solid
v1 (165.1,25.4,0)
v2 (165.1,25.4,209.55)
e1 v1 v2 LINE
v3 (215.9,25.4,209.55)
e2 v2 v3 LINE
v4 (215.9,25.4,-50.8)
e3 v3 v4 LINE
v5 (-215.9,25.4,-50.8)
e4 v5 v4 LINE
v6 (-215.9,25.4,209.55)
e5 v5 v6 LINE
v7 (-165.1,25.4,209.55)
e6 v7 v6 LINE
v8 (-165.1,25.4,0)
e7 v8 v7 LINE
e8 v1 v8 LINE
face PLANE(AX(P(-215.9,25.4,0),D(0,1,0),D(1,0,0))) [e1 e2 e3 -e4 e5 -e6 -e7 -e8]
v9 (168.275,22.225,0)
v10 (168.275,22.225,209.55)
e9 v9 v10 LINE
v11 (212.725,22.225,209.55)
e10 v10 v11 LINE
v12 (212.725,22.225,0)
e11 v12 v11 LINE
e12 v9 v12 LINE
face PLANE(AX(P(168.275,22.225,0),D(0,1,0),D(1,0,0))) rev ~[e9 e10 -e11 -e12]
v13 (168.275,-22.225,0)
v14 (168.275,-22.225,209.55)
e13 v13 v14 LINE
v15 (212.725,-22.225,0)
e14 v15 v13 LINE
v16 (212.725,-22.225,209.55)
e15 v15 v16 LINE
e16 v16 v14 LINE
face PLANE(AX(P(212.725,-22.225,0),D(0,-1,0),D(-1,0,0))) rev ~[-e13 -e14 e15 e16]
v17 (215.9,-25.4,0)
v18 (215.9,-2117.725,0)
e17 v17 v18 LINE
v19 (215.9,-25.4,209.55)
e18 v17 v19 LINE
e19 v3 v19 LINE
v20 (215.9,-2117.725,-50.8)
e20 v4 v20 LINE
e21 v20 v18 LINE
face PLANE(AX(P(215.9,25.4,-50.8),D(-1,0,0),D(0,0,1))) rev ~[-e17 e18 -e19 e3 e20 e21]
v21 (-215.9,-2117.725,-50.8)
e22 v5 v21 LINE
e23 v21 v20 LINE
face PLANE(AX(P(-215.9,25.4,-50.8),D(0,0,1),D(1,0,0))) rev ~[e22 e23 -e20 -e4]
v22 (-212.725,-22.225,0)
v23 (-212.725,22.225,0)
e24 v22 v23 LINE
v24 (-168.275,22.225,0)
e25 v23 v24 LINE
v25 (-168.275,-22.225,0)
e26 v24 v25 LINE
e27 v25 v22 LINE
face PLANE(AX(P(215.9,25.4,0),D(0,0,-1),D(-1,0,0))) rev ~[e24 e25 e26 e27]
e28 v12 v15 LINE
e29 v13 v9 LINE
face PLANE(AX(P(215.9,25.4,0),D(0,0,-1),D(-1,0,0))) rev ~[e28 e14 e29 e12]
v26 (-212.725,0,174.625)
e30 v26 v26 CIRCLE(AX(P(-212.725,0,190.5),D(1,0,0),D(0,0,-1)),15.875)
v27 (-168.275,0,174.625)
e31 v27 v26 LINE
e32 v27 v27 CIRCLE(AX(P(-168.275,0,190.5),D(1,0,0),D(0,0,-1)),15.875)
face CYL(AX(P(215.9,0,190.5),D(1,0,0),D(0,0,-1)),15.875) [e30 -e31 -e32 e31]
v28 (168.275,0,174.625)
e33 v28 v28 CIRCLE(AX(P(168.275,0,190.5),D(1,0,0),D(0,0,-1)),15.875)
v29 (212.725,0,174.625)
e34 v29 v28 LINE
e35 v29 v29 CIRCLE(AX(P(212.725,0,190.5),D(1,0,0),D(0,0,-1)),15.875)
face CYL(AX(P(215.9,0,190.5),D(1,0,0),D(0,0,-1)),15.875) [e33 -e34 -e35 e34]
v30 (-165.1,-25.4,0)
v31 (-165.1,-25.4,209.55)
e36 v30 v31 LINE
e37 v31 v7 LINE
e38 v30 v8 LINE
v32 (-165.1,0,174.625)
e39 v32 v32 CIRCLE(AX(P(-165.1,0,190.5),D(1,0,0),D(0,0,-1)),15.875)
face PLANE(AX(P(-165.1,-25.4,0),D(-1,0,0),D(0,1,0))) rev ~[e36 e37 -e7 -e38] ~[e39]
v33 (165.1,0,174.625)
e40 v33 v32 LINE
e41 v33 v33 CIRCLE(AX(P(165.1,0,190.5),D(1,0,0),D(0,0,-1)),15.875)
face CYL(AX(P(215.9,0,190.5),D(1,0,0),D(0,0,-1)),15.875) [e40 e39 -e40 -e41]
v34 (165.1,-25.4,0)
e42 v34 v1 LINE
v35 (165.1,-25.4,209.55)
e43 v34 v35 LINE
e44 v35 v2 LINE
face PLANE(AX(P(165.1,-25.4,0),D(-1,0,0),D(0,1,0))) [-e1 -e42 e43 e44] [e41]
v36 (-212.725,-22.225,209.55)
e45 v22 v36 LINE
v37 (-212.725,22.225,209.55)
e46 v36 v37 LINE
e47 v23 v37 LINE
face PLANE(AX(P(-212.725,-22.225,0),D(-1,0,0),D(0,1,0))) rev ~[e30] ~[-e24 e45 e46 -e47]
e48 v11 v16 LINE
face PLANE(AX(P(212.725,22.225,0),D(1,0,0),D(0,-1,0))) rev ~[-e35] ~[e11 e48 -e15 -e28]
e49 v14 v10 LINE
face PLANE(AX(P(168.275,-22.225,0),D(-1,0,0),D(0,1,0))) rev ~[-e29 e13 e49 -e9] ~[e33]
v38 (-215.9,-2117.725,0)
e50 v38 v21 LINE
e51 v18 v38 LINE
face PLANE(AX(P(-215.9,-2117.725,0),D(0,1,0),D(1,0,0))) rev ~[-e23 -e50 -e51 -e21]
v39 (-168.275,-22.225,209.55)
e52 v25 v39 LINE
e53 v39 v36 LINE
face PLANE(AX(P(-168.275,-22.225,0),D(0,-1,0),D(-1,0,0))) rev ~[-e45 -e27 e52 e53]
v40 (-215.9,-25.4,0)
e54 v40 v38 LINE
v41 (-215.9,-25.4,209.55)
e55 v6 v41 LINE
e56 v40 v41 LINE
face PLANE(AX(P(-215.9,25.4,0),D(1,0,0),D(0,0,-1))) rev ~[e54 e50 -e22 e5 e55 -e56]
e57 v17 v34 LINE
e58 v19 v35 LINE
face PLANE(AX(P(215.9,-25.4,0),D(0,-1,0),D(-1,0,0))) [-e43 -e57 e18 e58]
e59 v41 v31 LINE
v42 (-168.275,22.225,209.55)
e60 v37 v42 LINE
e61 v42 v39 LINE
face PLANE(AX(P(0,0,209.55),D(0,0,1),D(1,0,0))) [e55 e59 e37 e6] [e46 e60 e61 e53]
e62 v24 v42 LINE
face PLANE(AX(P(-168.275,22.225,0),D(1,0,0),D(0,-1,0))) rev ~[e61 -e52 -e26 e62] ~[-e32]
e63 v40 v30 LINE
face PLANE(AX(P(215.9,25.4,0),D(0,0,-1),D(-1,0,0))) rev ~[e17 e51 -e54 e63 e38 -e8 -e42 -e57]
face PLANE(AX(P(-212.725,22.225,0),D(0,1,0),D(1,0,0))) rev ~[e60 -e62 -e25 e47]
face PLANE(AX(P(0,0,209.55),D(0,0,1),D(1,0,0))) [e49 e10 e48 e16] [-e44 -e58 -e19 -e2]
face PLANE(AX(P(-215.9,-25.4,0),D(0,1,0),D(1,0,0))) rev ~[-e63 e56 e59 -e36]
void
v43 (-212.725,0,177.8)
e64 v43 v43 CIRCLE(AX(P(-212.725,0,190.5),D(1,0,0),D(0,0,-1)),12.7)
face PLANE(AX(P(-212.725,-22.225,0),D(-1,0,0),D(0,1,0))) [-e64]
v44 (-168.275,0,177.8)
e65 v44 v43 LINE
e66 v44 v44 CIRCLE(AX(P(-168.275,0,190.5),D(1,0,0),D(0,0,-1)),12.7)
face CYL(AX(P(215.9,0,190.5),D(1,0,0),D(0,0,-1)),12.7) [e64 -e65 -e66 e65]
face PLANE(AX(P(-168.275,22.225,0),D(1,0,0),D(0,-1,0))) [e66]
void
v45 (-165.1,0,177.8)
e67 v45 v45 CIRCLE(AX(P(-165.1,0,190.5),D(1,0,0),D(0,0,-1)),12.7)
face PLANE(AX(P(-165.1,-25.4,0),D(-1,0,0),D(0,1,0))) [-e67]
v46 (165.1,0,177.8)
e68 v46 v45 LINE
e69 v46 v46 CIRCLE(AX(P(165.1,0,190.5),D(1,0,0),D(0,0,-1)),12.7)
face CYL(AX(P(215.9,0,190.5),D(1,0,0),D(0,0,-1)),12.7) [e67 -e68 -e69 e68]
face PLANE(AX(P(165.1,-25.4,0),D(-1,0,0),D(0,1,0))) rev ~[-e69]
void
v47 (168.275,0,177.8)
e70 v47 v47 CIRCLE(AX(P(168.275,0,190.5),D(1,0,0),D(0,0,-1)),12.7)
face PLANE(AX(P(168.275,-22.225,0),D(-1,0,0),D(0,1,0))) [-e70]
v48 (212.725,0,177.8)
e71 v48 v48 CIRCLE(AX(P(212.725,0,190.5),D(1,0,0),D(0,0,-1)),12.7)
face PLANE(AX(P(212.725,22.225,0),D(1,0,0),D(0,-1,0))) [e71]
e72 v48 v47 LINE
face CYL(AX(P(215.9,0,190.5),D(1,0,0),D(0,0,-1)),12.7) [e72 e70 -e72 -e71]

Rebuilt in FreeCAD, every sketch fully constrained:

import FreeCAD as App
import Part
import Sketcher

V = App.Vector
Q = App.Units.Quantity

doc = App.newDocument("Part")
body = doc.addObject("PartDesign::Body", "Body")
body.AllowCompound = True

sketch1 = body.newObject("Sketcher::SketchObject", "Sketch")
sketch1.AttachmentSupport = (doc.getObject("XY_Plane"), [""])
sketch1.MapMode = "FlatFace"
sketch1.addGeometry([
    Part.LineSegment(V(-215.9, 25.4, 0), V(-215.9, -25.4, 0)),
    Part.LineSegment(V(-215.9, -25.4, 0), V(-165.1, -25.4, 0)),
    Part.LineSegment(V(-165.1, -25.4, 0), V(-165.1, 25.4, 0)),
    Part.LineSegment(V(-165.1, 25.4, 0), V(-215.9, 25.4, 0)),
    Part.LineSegment(V(-212.725, 22.225, 0), V(-168.275, 22.225, 0)),
    Part.LineSegment(V(-168.275, 22.225, 0), V(-168.275, -22.225, 0)),
    Part.LineSegment(V(-168.275, -22.225, 0), V(-212.725, -22.225, 0)),
    Part.LineSegment(V(-212.725, -22.225, 0), V(-212.725, 22.225, 0)),
    Part.LineSegment(V(165.1, -25.4, 0), V(215.9, -25.4, 0)),
    Part.LineSegment(V(215.9, -25.4, 0), V(215.9, 25.4, 0)),
    Part.LineSegment(V(215.9, 25.4, 0), V(165.1, 25.4, 0)),
    Part.LineSegment(V(165.1, 25.4, 0), V(165.1, -25.4, 0)),
    Part.LineSegment(V(212.725, 22.225, 0), V(212.725, -22.225, 0)),
    Part.LineSegment(V(212.725, -22.225, 0), V(168.275, -22.225, 0)),
    Part.LineSegment(V(168.275, -22.225, 0), V(168.275, 22.225, 0)),
    Part.LineSegment(V(168.275, 22.225, 0), V(212.725, 22.225, 0)),
], False)
sketch1.addConstraint([
    Sketcher.Constraint("Coincident", 0, 2, 1, 1),
    Sketcher.Constraint("Coincident", 1, 2, 2, 1),
    Sketcher.Constraint("Coincident", 2, 2, 3, 1),
    Sketcher.Constraint("Coincident", 3, 2, 0, 1),
    Sketcher.Constraint("Coincident", 4, 2, 5, 1),
    Sketcher.Constraint("Coincident", 5, 2, 6, 1),
    Sketcher.Constraint("Coincident", 6, 2, 7, 1),
    Sketcher.Constraint("Coincident", 7, 2, 4, 1),
    Sketcher.Constraint("Coincident", 8, 2, 9, 1),
    Sketcher.Constraint("Coincident", 9, 2, 10, 1),
    Sketcher.Constraint("Coincident", 10, 2, 11, 1),
    Sketcher.Constraint("Coincident", 11, 2, 8, 1),
    Sketcher.Constraint("Coincident", 12, 2, 13, 1),
    Sketcher.Constraint("Coincident", 13, 2, 14, 1),
    Sketcher.Constraint("Coincident", 14, 2, 15, 1),
    Sketcher.Constraint("Coincident", 15, 2, 12, 1),
    Sketcher.Constraint("Vertical", 0),
    Sketcher.Constraint("Horizontal", 1),
    Sketcher.Constraint("Vertical", 2),
    Sketcher.Constraint("Horizontal", 3),
    Sketcher.Constraint("Horizontal", 4),
    Sketcher.Constraint("Vertical", 5),
    Sketcher.Constraint("Horizontal", 6),
    Sketcher.Constraint("Vertical", 7),
    Sketcher.Constraint("Horizontal", 8),
    Sketcher.Constraint("Vertical", 9),
    Sketcher.Constraint("Horizontal", 10),
    Sketcher.Constraint("Vertical", 11),
    Sketcher.Constraint("Vertical", 12),
    Sketcher.Constraint("Horizontal", 13),
    Sketcher.Constraint("Vertical", 14),
    Sketcher.Constraint("Horizontal", 15),
    Sketcher.Constraint("Symmetric", 3, 2, 8, 2, -1, 1),
    Sketcher.Constraint("Symmetric", 1, 2, 10, 2, -1, 1),
    Sketcher.Constraint("Symmetric", 7, 2, 12, 2, -1, 1),
    Sketcher.Constraint("Symmetric", 5, 2, 14, 2, -1, 1),
    Sketcher.Constraint("Horizontal", 1, 2, 8, 2),
    Sketcher.Constraint("Horizontal", 6, 2, 12, 2),
    Sketcher.Constraint("Equal", 10, 0),
    Sketcher.Constraint("Equal", 15, 5),
    Sketcher.Constraint("DistanceX", 1, 1, 1, 2, Q("2 in")),
    Sketcher.Constraint("DistanceX", 2, 2, 10, 2, Q("13 in")),
    Sketcher.Constraint("DistanceX", 4, 2, 2, 2, Q("0.125 in")),
    Sketcher.Constraint("DistanceY", 4, 2, 2, 2, Q("0.125 in")),
])
pad1 = body.newObject("PartDesign::Pad", "Pad")
pad1.Profile = sketch1
pad1.Length = Q("8.25 in")

sketch2 = body.newObject("Sketcher::SketchObject", "Sketch001")
sketch2.AttachmentSupport = (doc.getObject("YZ_Plane"), [""])
sketch2.MapMode = "FlatFace"
sketch2.AttachmentOffset = App.Placement(V(0, 0, 8.5 * 25.4), App.Rotation())
sketch2.addGeometry([
    Part.Circle(V(0, 190.5, 0), V(0, 0, 1), 15.875),
    Part.Circle(V(0, 190.5, 0), V(0, 0, 1), 12.7),
], False)
sketch2.addConstraint([
    Sketcher.Constraint("Coincident", 1, 3, 0, 3),
    Sketcher.Constraint("PointOnObject", 0, 3, -2),
    Sketcher.Constraint("Diameter", 0, Q("1.25 in")),
    Sketcher.Constraint("Diameter", 1, Q("1 in")),
    Sketcher.Constraint("DistanceY", -1, 1, 0, 3, Q("7.5 in")),
])
pad2 = body.newObject("PartDesign::Pad", "Pad001")
pad2.Profile = sketch2
pad2.Length = Q("17 in")
pad2.Reversed = True

sketch3 = body.newObject("Sketcher::SketchObject", "Sketch002")
sketch3.AttachmentSupport = (doc.getObject("XZ_Plane"), [""])
sketch3.MapMode = "FlatFace"
sketch3.AttachmentOffset = App.Placement(V(0, 0, -1 * 25.4), App.Rotation())
sketch3.addGeometry([
    Part.LineSegment(V(-215.9, 0, 0), V(215.9, 0, 0)),
    Part.LineSegment(V(215.9, 0, 0), V(215.9, -50.8, 0)),
    Part.LineSegment(V(215.9, -50.8, 0), V(-215.9, -50.8, 0)),
    Part.LineSegment(V(-215.9, -50.8, 0), V(-215.9, 0, 0)),
], False)
sketch3.addConstraint([
    Sketcher.Constraint("Coincident", 0, 2, 1, 1),
    Sketcher.Constraint("Coincident", 1, 2, 2, 1),
    Sketcher.Constraint("Coincident", 2, 2, 3, 1),
    Sketcher.Constraint("Coincident", 3, 2, 0, 1),
    Sketcher.Constraint("Horizontal", 0),
    Sketcher.Constraint("Vertical", 1),
    Sketcher.Constraint("Horizontal", 2),
    Sketcher.Constraint("Vertical", 3),
    Sketcher.Constraint("Symmetric", 0, 2, 3, 2, -1, 1),
    Sketcher.Constraint("DistanceX", 0, 1, 0, 2, Q("17 in")),
    Sketcher.Constraint("DistanceY", 1, 2, 1, 1, Q("2 in")),
])
pad3 = body.newObject("PartDesign::Pad", "Pad002")
pad3.Profile = sketch3
pad3.Length = Q("84.375 in")

doc.recompute()
